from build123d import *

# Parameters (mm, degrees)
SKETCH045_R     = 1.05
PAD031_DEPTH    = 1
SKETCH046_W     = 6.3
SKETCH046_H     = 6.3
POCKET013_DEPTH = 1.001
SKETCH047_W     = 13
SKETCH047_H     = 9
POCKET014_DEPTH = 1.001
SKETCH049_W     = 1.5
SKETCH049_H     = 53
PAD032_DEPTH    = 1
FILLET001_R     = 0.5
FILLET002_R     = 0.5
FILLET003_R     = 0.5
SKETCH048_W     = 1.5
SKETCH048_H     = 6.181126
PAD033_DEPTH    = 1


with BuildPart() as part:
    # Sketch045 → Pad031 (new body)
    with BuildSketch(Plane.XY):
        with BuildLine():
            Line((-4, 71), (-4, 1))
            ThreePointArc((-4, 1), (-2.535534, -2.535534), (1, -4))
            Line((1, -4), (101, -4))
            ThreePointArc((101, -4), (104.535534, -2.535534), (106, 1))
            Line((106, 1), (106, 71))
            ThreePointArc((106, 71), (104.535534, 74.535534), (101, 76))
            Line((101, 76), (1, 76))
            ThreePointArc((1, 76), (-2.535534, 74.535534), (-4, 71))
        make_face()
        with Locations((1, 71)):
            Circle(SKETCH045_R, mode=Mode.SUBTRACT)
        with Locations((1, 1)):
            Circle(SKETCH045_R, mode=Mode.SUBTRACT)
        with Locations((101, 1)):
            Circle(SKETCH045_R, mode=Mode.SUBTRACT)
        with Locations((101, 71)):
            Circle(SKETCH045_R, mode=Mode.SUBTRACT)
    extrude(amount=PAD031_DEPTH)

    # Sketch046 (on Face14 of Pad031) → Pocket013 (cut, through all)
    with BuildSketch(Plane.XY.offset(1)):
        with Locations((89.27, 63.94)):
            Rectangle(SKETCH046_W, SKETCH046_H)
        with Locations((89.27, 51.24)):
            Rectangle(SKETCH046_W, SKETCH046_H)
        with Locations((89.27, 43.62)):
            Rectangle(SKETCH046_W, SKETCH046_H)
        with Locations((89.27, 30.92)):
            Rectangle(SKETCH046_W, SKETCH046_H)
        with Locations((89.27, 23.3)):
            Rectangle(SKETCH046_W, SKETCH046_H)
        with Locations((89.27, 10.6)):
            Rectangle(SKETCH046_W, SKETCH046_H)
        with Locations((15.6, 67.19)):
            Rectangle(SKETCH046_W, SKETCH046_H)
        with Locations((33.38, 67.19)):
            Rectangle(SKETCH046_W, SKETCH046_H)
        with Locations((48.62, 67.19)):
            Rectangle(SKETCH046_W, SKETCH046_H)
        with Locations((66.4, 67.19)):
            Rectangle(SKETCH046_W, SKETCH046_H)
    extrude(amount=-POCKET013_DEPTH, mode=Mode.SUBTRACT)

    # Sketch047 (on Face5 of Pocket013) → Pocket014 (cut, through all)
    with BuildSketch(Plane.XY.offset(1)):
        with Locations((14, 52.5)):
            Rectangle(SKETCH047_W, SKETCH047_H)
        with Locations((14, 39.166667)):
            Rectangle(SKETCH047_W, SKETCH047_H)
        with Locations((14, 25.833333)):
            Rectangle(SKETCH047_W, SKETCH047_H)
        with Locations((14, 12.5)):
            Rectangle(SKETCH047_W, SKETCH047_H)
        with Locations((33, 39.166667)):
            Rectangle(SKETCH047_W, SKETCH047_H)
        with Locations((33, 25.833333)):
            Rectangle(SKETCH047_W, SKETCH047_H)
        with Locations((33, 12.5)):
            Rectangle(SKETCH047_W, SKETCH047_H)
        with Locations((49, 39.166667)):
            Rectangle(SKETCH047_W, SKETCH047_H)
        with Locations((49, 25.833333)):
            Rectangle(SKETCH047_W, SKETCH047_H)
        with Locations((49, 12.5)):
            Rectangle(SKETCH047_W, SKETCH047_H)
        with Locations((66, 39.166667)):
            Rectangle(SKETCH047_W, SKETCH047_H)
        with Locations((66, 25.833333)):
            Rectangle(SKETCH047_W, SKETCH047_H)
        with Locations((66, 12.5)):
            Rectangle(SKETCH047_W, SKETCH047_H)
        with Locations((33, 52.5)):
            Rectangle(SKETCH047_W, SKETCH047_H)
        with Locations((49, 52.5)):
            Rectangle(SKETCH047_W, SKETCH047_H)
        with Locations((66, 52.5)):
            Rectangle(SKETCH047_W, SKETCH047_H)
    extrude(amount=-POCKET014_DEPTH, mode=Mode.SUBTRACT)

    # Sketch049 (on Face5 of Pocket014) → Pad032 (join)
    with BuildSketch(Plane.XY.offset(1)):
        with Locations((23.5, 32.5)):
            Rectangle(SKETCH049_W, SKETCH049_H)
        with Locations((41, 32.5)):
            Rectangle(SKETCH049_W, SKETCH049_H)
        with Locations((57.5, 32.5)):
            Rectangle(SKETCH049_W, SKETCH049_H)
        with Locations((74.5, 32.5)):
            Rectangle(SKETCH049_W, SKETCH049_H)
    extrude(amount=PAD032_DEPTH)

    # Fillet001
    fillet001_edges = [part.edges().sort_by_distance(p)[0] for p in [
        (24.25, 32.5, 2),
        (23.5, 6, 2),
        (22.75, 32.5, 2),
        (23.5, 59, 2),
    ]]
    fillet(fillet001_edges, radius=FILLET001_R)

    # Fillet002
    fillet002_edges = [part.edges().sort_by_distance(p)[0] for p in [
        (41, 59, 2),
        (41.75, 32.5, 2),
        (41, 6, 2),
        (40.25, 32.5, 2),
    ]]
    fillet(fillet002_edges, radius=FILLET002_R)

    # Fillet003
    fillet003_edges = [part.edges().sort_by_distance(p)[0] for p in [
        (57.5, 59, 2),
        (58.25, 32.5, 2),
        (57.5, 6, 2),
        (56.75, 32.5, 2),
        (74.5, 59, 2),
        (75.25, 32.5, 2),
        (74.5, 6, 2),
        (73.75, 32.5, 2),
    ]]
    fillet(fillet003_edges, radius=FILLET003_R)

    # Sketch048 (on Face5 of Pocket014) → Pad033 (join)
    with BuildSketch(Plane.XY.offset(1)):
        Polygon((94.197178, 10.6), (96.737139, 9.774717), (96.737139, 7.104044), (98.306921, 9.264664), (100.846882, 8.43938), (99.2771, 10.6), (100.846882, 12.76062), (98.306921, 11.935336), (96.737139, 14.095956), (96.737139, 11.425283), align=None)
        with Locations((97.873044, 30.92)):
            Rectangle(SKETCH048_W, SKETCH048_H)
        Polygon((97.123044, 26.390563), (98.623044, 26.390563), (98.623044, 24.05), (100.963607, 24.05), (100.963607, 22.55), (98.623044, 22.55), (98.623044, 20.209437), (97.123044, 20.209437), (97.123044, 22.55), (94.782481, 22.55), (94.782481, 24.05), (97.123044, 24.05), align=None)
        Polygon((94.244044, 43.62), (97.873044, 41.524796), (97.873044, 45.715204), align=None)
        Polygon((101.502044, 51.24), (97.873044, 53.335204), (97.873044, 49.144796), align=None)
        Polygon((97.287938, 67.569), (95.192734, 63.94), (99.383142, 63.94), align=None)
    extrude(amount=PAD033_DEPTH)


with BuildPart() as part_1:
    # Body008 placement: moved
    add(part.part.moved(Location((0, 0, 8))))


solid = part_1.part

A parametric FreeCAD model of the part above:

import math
import FreeCAD as App
import Part
import Sketcher

V = App.Vector
Q = App.Units.Quantity


def edges_at(feature, points):
    """Names of the edges that pass closest to the given points."""
    edges = feature.Shape.Edges
    near = lambda p: min(range(len(edges)), key=lambda i: edges[i].distToShape(Part.Vertex(*p))[0])
    return sorted({f"Edge{near(p) + 1}" for p in points})

doc = App.newDocument("Part")
body = doc.addObject("PartDesign::Body", "Body")

# Sketch on XY plane
sketch1 = body.newObject("Sketcher::SketchObject", "Sketch")
sketch1.AttachmentSupport = (doc.getObject("XY_Plane"), [""])
sketch1.MapMode = "FlatFace"
sketch1.addGeometry(Part.LineSegment(V(-4, 71, 0), V(-4, 1, 0)), False)
sketch1.addGeometry(Part.ArcOfCircle(Part.Circle(V(1, 1, 0), V(0, 0, 1), 5), math.radians(180), math.radians(270)), False)
sketch1.addGeometry(Part.LineSegment(V(1, -4, 0), V(101, -4, 0)), False)
sketch1.addGeometry(Part.ArcOfCircle(Part.Circle(V(101, 1, 0), V(0, 0, 1), 5), math.radians(-90), math.radians(0)), False)
sketch1.addGeometry(Part.LineSegment(V(106, 1, 0), V(106, 71, 0)), False)
sketch1.addGeometry(Part.ArcOfCircle(Part.Circle(V(101, 71, 0), V(0, 0, 1), 5), math.radians(0), math.radians(90)), False)
sketch1.addGeometry(Part.LineSegment(V(101, 76, 0), V(1, 76, 0)), False)
sketch1.addGeometry(Part.ArcOfCircle(Part.Circle(V(1, 71, 0), V(0, 0, 1), 5), math.radians(90), math.radians(180)), False)
sketch1.addGeometry(Part.Circle(V(1, 1, 0), V(0, 0, 1), 1.1), False)
sketch1.addGeometry(Part.Circle(V(101, 1, 0), V(0, 0, 1), 1.1), False)
sketch1.addGeometry(Part.Circle(V(1, 71, 0), V(0, 0, 1), 1.1), False)
sketch1.addGeometry(Part.Circle(V(101, 71, 0), V(0, 0, 1), 1.1), False)
sketch1.addConstraint(Sketcher.Constraint("Tangent", 0, 2, 1, 1))
sketch1.addConstraint(Sketcher.Constraint("Tangent", 1, 2, 2, 1))
sketch1.addConstraint(Sketcher.Constraint("Tangent", 2, 2, 3, 1))
sketch1.addConstraint(Sketcher.Constraint("Tangent", 3, 2, 4, 1))
sketch1.addConstraint(Sketcher.Constraint("Tangent", 4, 2, 5, 1))
sketch1.addConstraint(Sketcher.Constraint("Tangent", 5, 2, 6, 1))
sketch1.addConstraint(Sketcher.Constraint("Tangent", 6, 2, 7, 1))
sketch1.addConstraint(Sketcher.Constraint("Tangent", 7, 2, 0, 1))
sketch1.addConstraint(Sketcher.Constraint("Vertical", 0))
sketch1.addConstraint(Sketcher.Constraint("Horizontal", 2))
sketch1.addConstraint(Sketcher.Constraint("Vertical", 4))
sketch1.addConstraint(Sketcher.Constraint("Horizontal", 6))
sketch1.addConstraint(Sketcher.Constraint("Coincident", 8, 3, 1, 3))
sketch1.addConstraint(Sketcher.Constraint("Coincident", 9, 3, 3, 3))
sketch1.addConstraint(Sketcher.Constraint("Coincident", 10, 3, 7, 3))
sketch1.addConstraint(Sketcher.Constraint("Coincident", 11, 3, 5, 3))
sketch1.addConstraint(Sketcher.Constraint("Equal", 1, 3))
sketch1.addConstraint(Sketcher.Constraint("Equal", 3, 5))
sketch1.addConstraint(Sketcher.Constraint("Equal", 5, 7))
sketch1.addConstraint(Sketcher.Constraint("Equal", 8, 9))
sketch1.addConstraint(Sketcher.Constraint("Equal", 9, 10))
sketch1.addConstraint(Sketcher.Constraint("Equal", 10, 11))
sketch1.addConstraint(Sketcher.Constraint("Radius", 1, 5.0))
sketch1.addConstraint(Sketcher.Constraint("Diameter", 8, 2.1))
sketch1.addConstraint(Sketcher.Constraint("DistanceX", 2, 1, 2, 2, 100.0))
sketch1.addConstraint(Sketcher.Constraint("DistanceY", 0, 2, 0, 1, 70.0))
sketch1.addConstraint(Sketcher.Constraint("DistanceX", -1, 1, 1, 3, 1.0))
sketch1.addConstraint(Sketcher.Constraint("DistanceY", -1, 1, 1, 3, 1.0))
pad1 = body.newObject("PartDesign::Pad", "Pad")
pad1.Profile = sketch1
pad1.Length = 1

# Sketch on XY plane
sketch2 = body.newObject("Sketcher::SketchObject", "Sketch001")
sketch2.AttachmentSupport = (doc.getObject("XY_Plane"), [""])
sketch2.MapMode = "FlatFace"
sketch2.AttachmentOffset = App.Placement(V(0, 0, 1), App.Rotation())
sketch2.addGeometry(Part.LineSegment(V(86, 67, 0), V(86, 61, 0)), False)
sketch2.addGeometry(Part.LineSegment(V(86, 61, 0), V(92, 61, 0)), False)
sketch2.addGeometry(Part.LineSegment(V(92, 61, 0), V(92, 67, 0)), False)
sketch2.addGeometry(Part.LineSegment(V(92, 67, 0), V(86, 67, 0)), False)
sketch2.addGeometry(Part.LineSegment(V(86, 54, 0), V(86, 48, 0)), False)
sketch2.addGeometry(Part.LineSegment(V(86, 48, 0), V(92, 48, 0)), False)
sketch2.addGeometry(Part.LineSegment(V(92, 48, 0), V(92, 54, 0)), False)
sketch2.addGeometry(Part.LineSegment(V(92, 54, 0), V(86, 54, 0)), False)
sketch2.addGeometry(Part.LineSegment(V(86, 47, 0), V(86, 40, 0)), False)
sketch2.addGeometry(Part.LineSegment(V(86, 40, 0), V(92, 40, 0)), False)
sketch2.addGeometry(Part.LineSegment(V(92, 40, 0), V(92, 47, 0)), False)
sketch2.addGeometry(Part.LineSegment(V(92, 47, 0), V(86, 47, 0)), False)
sketch2.addGeometry(Part.LineSegment(V(86, 34, 0), V(86, 28, 0)), False)
sketch2.addGeometry(Part.LineSegment(V(86, 28, 0), V(92, 28, 0)), False)
sketch2.addGeometry(Part.LineSegment(V(92, 28, 0), V(92, 34, 0)), False)
sketch2.addGeometry(Part.LineSegment(V(92, 34, 0), V(86, 34, 0)), False)
sketch2.addGeometry(Part.LineSegment(V(86, 26, 0), V(86, 20, 0)), False)
sketch2.addGeometry(Part.LineSegment(V(86, 20, 0), V(92, 20, 0)), False)
sketch2.addGeometry(Part.LineSegment(V(92, 20, 0), V(92, 26, 0)), False)
sketch2.addGeometry(Part.LineSegment(V(92, 26, 0), V(86, 26, 0)), False)
sketch2.addGeometry(Part.LineSegment(V(86, 14, 0), V(86, 7, 0)), False)
sketch2.addGeometry(Part.LineSegment(V(86, 7, 0), V(92, 7, 0)), False)
sketch2.addGeometry(Part.LineSegment(V(92, 7, 0), V(92, 14, 0)), False)
sketch2.addGeometry(Part.LineSegment(V(92, 14, 0), V(86, 14, 0)), False)
sketch2.addGeometry(Part.LineSegment(V(12, 70, 0), V(12, 64, 0)), False)
sketch2.addGeometry(Part.LineSegment(V(12, 64, 0), V(19, 64, 0)), False)
sketch2.addGeometry(Part.LineSegment(V(19, 64, 0), V(19, 70, 0)), False)
sketch2.addGeometry(Part.LineSegment(V(19, 70, 0), V(12, 70, 0)), False)
sketch2.addGeometry(Part.LineSegment(V(30, 70, 0), V(30, 64, 0)), False)
sketch2.addGeometry(Part.LineSegment(V(30, 64, 0), V(37, 64, 0)), False)
sketch2.addGeometry(Part.LineSegment(V(37, 64, 0), V(37, 70, 0)), False)
sketch2.addGeometry(Part.LineSegment(V(37, 70, 0), V(30, 70, 0)), False)
sketch2.addGeometry(Part.LineSegment(V(45, 70, 0), V(45, 64, 0)), False)
sketch2.addGeometry(Part.LineSegment(V(45, 64, 0), V(52, 64, 0)), False)
sketch2.addGeometry(Part.LineSegment(V(52, 64, 0), V(52, 70, 0)), False)
sketch2.addGeometry(Part.LineSegment(V(52, 70, 0), V(45, 70, 0)), False)
sketch2.addGeometry(Part.LineSegment(V(63, 70, 0), V(63, 64, 0)), False)
sketch2.addGeometry(Part.LineSegment(V(63, 64, 0), V(70, 64, 0)), False)
sketch2.addGeometry(Part.LineSegment(V(70, 64, 0), V(70, 70, 0)), False)
sketch2.addGeometry(Part.LineSegment(V(70, 70, 0), V(63, 70, 0)), False)
sketch2.addConstraint(Sketcher.Constraint("Coincident", 0, 2, 1, 1))
sketch2.addConstraint(Sketcher.Constraint("Coincident", 1, 2, 2, 1))
sketch2.addConstraint(Sketcher.Constraint("Coincident", 2, 2, 3, 1))
sketch2.addConstraint(Sketcher.Constraint("Coincident", 3, 2, 0, 1))
sketch2.addConstraint(Sketcher.Constraint("Coincident", 4, 2, 5, 1))
sketch2.addConstraint(Sketcher.Constraint("Coincident", 5, 2, 6, 1))
sketch2.addConstraint(Sketcher.Constraint("Coincident", 6, 2, 7, 1))
sketch2.addConstraint(Sketcher.Constraint("Coincident", 7, 2, 4, 1))
sketch2.addConstraint(Sketcher.Constraint("Coincident", 8, 2, 9, 1))
sketch2.addConstraint(Sketcher.Constraint("Coincident", 9, 2, 10, 1))
sketch2.addConstraint(Sketcher.Constraint("Coincident", 10, 2, 11, 1))
sketch2.addConstraint(Sketcher.Constraint("Coincident", 11, 2, 8, 1))
sketch2.addConstraint(Sketcher.Constraint("Coincident", 12, 2, 13, 1))
sketch2.addConstraint(Sketcher.Constraint("Coincident", 13, 2, 14, 1))
sketch2.addConstraint(Sketcher.Constraint("Coincident", 14, 2, 15, 1))
sketch2.addConstraint(Sketcher.Constraint("Coincident", 15, 2, 12, 1))
sketch2.addConstraint(Sketcher.Constraint("Coincident", 16, 2, 17, 1))
sketch2.addConstraint(Sketcher.Constraint("Coincident", 17, 2, 18, 1))
sketch2.addConstraint(Sketcher.Constraint("Coincident", 18, 2, 19, 1))
sketch2.addConstraint(Sketcher.Constraint("Coincident", 19, 2, 16, 1))
sketch2.addConstraint(Sketcher.Constraint("Coincident", 20, 2, 21, 1))
sketch2.addConstraint(Sketcher.Constraint("Coincident", 21, 2, 22, 1))
sketch2.addConstraint(Sketcher.Constraint("Coincident", 22, 2, 23, 1))
sketch2.addConstraint(Sketcher.Constraint("Coincident", 23, 2, 20, 1))
sketch2.addConstraint(Sketcher.Constraint("Coincident", 24, 2, 25, 1))
sketch2.addConstraint(Sketcher.Constraint("Coincident", 25, 2, 26, 1))
sketch2.addConstraint(Sketcher.Constraint("Coincident", 26, 2, 27, 1))
sketch2.addConstraint(Sketcher.Constraint("Coincident", 27, 2, 24, 1))
sketch2.addConstraint(Sketcher.Constraint("Coincident", 28, 2, 29, 1))
sketch2.addConstraint(Sketcher.Constraint("Coincident", 29, 2, 30, 1))
sketch2.addConstraint(Sketcher.Constraint("Coincident", 30, 2, 31, 1))
sketch2.addConstraint(Sketcher.Constraint("Coincident", 31, 2, 28, 1))
sketch2.addConstraint(Sketcher.Constraint("Coincident", 32, 2, 33, 1))
sketch2.addConstraint(Sketcher.Constraint("Coincident", 33, 2, 34, 1))
sketch2.addConstraint(Sketcher.Constraint("Coincident", 34, 2, 35, 1))
sketch2.addConstraint(Sketcher.Constraint("Coincident", 35, 2, 32, 1))
sketch2.addConstraint(Sketcher.Constraint("Coincident", 36, 2, 37, 1))
sketch2.addConstraint(Sketcher.Constraint("Coincident", 37, 2, 38, 1))
sketch2.addConstraint(Sketcher.Constraint("Coincident", 38, 2, 39, 1))
sketch2.addConstraint(Sketcher.Constraint("Coincident", 39, 2, 36, 1))
sketch2.addConstraint(Sketcher.Constraint("Vertical", 0))
sketch2.addConstraint(Sketcher.Constraint("Horizontal", 1))
sketch2.addConstraint(Sketcher.Constraint("Vertical", 2))
sketch2.addConstraint(Sketcher.Constraint("Horizontal", 3))
sketch2.addConstraint(Sketcher.Constraint("Vertical", 4))
sketch2.addConstraint(Sketcher.Constraint("Horizontal", 5))
sketch2.addConstraint(Sketcher.Constraint("Vertical", 6))
sketch2.addConstraint(Sketcher.Constraint("Horizontal", 7))
sketch2.addConstraint(Sketcher.Constraint("Vertical", 8))
sketch2.addConstraint(Sketcher.Constraint("Horizontal", 9))
sketch2.addConstraint(Sketcher.Constraint("Vertical", 10))
sketch2.addConstraint(Sketcher.Constraint("Horizontal", 11))
sketch2.addConstraint(Sketcher.Constraint("Vertical", 12))
sketch2.addConstraint(Sketcher.Constraint("Horizontal", 13))
sketch2.addConstraint(Sketcher.Constraint("Vertical", 14))
sketch2.addConstraint(Sketcher.Constraint("Horizontal", 15))
sketch2.addConstraint(Sketcher.Constraint("Vertical", 16))
sketch2.addConstraint(Sketcher.Constraint("Horizontal", 17))
sketch2.addConstraint(Sketcher.Constraint("Vertical", 18))
sketch2.addConstraint(Sketcher.Constraint("Horizontal", 19))
sketch2.addConstraint(Sketcher.Constraint("Vertical", 20))
sketch2.addConstraint(Sketcher.Constraint("Horizontal", 21))
sketch2.addConstraint(Sketcher.Constraint("Vertical", 22))
sketch2.addConstraint(Sketcher.Constraint("Horizontal", 23))
sketch2.addConstraint(Sketcher.Constraint("Vertical", 24))
sketch2.addConstraint(Sketcher.Constraint("Horizontal", 25))
sketch2.addConstraint(Sketcher.Constraint("Vertical", 26))
sketch2.addConstraint(Sketcher.Constraint("Horizontal", 27))
sketch2.addConstraint(Sketcher.Constraint("Vertical", 28))
sketch2.addConstraint(Sketcher.Constraint("Horizontal", 29))
sketch2.addConstraint(Sketcher.Constraint("Vertical", 30))
sketch2.addConstraint(Sketcher.Constraint("Horizontal", 31))
sketch2.addConstraint(Sketcher.Constraint("Vertical", 32))
sketch2.addConstraint(Sketcher.Constraint("Horizontal", 33))
sketch2.addConstraint(Sketcher.Constraint("Vertical", 34))
sketch2.addConstraint(Sketcher.Constraint("Horizontal", 35))
sketch2.addConstraint(Sketcher.Constraint("Vertical", 36))
sketch2.addConstraint(Sketcher.Constraint("Horizontal", 37))
sketch2.addConstraint(Sketcher.Constraint("Vertical", 38))
sketch2.addConstraint(Sketcher.Constraint("Horizontal", 39))
sketch2.addConstraint(Sketcher.Constraint("Horizontal", 25, 2, 28, 2))
sketch2.addConstraint(Sketcher.Constraint("Horizontal", 27, 2, 30, 2))
sketch2.addConstraint(Sketcher.Constraint("Horizontal", 29, 2, 32, 2))
sketch2.addConstraint(Sketcher.Constraint("Horizontal", 31, 2, 34, 2))
sketch2.addConstraint(Sketcher.Constraint("Horizontal", 33, 2, 36, 2))
sketch2.addConstraint(Sketcher.Constraint("Horizontal", 35, 2, 38, 2))
sketch2.addConstraint(Sketcher.Constraint("Vertical", 3, 2, 4, 2))
sketch2.addConstraint(Sketcher.Constraint("Vertical", 2, 2, 5, 2))
sketch2.addConstraint(Sketcher.Constraint("Vertical", 7, 2, 8, 2))
sketch2.addConstraint(Sketcher.Constraint("Vertical", 6, 2, 9, 2))
sketch2.addConstraint(Sketcher.Constraint("Vertical", 11, 2, 12, 2))
sketch2.addConstraint(Sketcher.Constraint("Vertical", 10, 2, 13, 2))
sketch2.addConstraint(Sketcher.Constraint("Vertical", 15, 2, 16, 2))
sketch2.addConstraint(Sketcher.Constraint("Vertical", 14, 2, 17, 2))
sketch2.addConstraint(Sketcher.Constraint("Vertical", 19, 2, 20, 2))
sketch2.addConstraint(Sketcher.Constraint("Vertical", 18, 2, 21, 2))
sketch2.addConstraint(Sketcher.Constraint("Equal", 23, 25))
sketch2.addConstraint(Sketcher.Constraint("Equal", 27, 29))
sketch2.addConstraint(Sketcher.Constraint("Equal", 31, 33))
sketch2.addConstraint(Sketcher.Constraint("Equal", 35, 37))
sketch2.addConstraint(Sketcher.Constraint("Equal", 39, 0))
sketch2.addConstraint(Sketcher.Constraint("Equal", 2, 4))
sketch2.addConstraint(Sketcher.Constraint("Equal", 6, 8))
sketch2.addConstraint(Sketcher.Constraint("Equal", 10, 12))
sketch2.addConstraint(Sketcher.Constraint("Equal", 14, 16))
sketch2.addConstraint(Sketcher.Constraint("Equal", 18, 20))
sketch2.addConstraint(Sketcher.Constraint("Equal", 22, 24))
sketch2.addConstraint(Sketcher.Constraint("DistanceX", 1, 1, 1, 2, 6.3))
sketch2.addConstraint(Sketcher.Constraint("DistanceY", 4, 2, 3, 2, 19.0))
sketch2.addConstraint(Sketcher.Constraint("DistanceY", 12, 2, 11, 2, 19.0))
sketch2.addConstraint(Sketcher.Constraint("DistanceY", 20, 2, 19, 2, 19.0))
sketch2.addConstraint(Sketcher.Constraint("DistanceX", -1, 1, 0, 2, 86.12))
sketch2.addConstraint(Sketcher.Constraint("DistanceY", -1, 1, 0, 2, 60.79))
sketch2.addConstraint(Sketcher.Constraint("DistanceY", -1, 1, 8, 2, 40.47))
sketch2.addConstraint(Sketcher.Constraint("DistanceY", -1, 1, 16, 2, 20.15))
sketch2.addConstraint(Sketcher.Constraint("DistanceX", -1, 1, 24, 2, 12.45))
sketch2.addConstraint(Sketcher.Constraint("DistanceY", -1, 1, 24, 2, 64.04))
sketch2.addConstraint(Sketcher.Constraint("DistanceX", -1, 1, 28, 2, 30.23))
sketch2.addConstraint(Sketcher.Constraint("DistanceX", -1, 1, 32, 2, 45.47))
sketch2.addConstraint(Sketcher.Constraint("DistanceX", -1, 1, 36, 2, 63.25))
pocket1 = body.newObject("PartDesign::Pocket", "Pocket")
pocket1.Profile = sketch2
pocket1.Type = "ThroughAll"

# Sketch on XY plane
sketch3 = body.newObject("Sketcher::SketchObject", "Sketch002")
sketch3.AttachmentSupport = (doc.getObject("XY_Plane"), [""])
sketch3.MapMode = "FlatFace"
sketch3.AttachmentOffset = App.Placement(V(0, 0, 1), App.Rotation())
sketch3.addGeometry(Part.LineSegment(V(8, 57, 0), V(8, 48, 0)), False)
sketch3.addGeometry(Part.LineSegment(V(8, 48, 0), V(20, 48, 0)), False)
sketch3.addGeometry(Part.LineSegment(V(20, 48, 0), V(20, 57, 0)), False)
sketch3.addGeometry(Part.LineSegment(V(20, 57, 0), V(8, 57, 0)), False)
sketch3.addGeometry(Part.LineSegment(V(8, 44, 0), V(8, 35, 0)), False)
sketch3.addGeometry(Part.LineSegment(V(8, 35, 0), V(20, 35, 0)), False)
sketch3.addGeometry(Part.LineSegment(V(20, 35, 0), V(20, 44, 0)), False)
sketch3.addGeometry(Part.LineSegment(V(20, 44, 0), V(8, 44, 0)), False)
sketch3.addGeometry(Part.LineSegment(V(8, 30, 0), V(8, 21, 0)), False)
sketch3.addGeometry(Part.LineSegment(V(8, 21, 0), V(20, 21, 0)), False)
sketch3.addGeometry(Part.LineSegment(V(20, 21, 0), V(20, 30, 0)), False)
sketch3.addGeometry(Part.LineSegment(V(20, 30, 0), V(8, 30, 0)), False)
sketch3.addGeometry(Part.LineSegment(V(8, 17, 0), V(8, 8, 0)), False)
sketch3.addGeometry(Part.LineSegment(V(8, 8, 0), V(20, 8, 0)), False)
sketch3.addGeometry(Part.LineSegment(V(20, 8, 0), V(20, 17, 0)), False)
sketch3.addGeometry(Part.LineSegment(V(20, 17, 0), V(8, 17, 0)), False)
sketch3.addGeometry(Part.LineSegment(V(26, 44, 0), V(26, 35, 0)), False)
sketch3.addGeometry(Part.LineSegment(V(26, 35, 0), V(40, 35, 0)), False)
sketch3.addGeometry(Part.LineSegment(V(40, 35, 0), V(40, 44, 0)), False)
sketch3.addGeometry(Part.LineSegment(V(40, 44, 0), V(26, 44, 0)), False)
sketch3.addGeometry(Part.LineSegment(V(26, 30, 0), V(26, 21, 0)), False)
sketch3.addGeometry(Part.LineSegment(V(26, 21, 0), V(40, 21, 0)), False)
sketch3.addGeometry(Part.LineSegment(V(40, 21, 0), V(40, 30, 0)), False)
sketch3.addGeometry(Part.LineSegment(V(40, 30, 0), V(26, 30, 0)), False)
sketch3.addGeometry(Part.LineSegment(V(26, 17, 0), V(26, 8, 0)), False)
sketch3.addGeometry(Part.LineSegment(V(26, 8, 0), V(40, 8, 0)), False)
sketch3.addGeometry(Part.LineSegment(V(40, 8, 0), V(40, 17, 0)), False)
sketch3.addGeometry(Part.LineSegment(V(40, 17, 0), V(26, 17, 0)), False)
sketch3.addGeometry(Part.LineSegment(V(42, 44, 0), V(42, 35, 0)), False)
sketch3.addGeometry(Part.LineSegment(V(42, 35, 0), V(56, 35, 0)), False)
sketch3.addGeometry(Part.LineSegment(V(56, 35, 0), V(56, 44, 0)), False)
sketch3.addGeometry(Part.LineSegment(V(56, 44, 0), V(42, 44, 0)), False)
sketch3.addGeometry(Part.LineSegment(V(42, 30, 0), V(42, 21, 0)), False)
sketch3.addGeometry(Part.LineSegment(V(42, 21, 0), V(56, 21, 0)), False)
sketch3.addGeometry(Part.LineSegment(V(56, 21, 0), V(56, 30, 0)), False)
sketch3.addGeometry(Part.LineSegment(V(56, 30, 0), V(42, 30, 0)), False)
sketch3.addGeometry(Part.LineSegment(V(42, 17, 0), V(42, 8, 0)), False)
sketch3.addGeometry(Part.LineSegment(V(42, 8, 0), V(56, 8, 0)), False)
sketch3.addGeometry(Part.LineSegment(V(56, 8, 0), V(56, 17, 0)), False)
sketch3.addGeometry(Part.LineSegment(V(56, 17, 0), V(42, 17, 0)), False)
sketch3.addGeometry(Part.LineSegment(V(60, 44, 0), V(60, 35, 0)), False)
sketch3.addGeometry(Part.LineSegment(V(60, 35, 0), V(72, 35, 0)), False)
sketch3.addGeometry(Part.LineSegment(V(72, 35, 0), V(72, 44, 0)), False)
sketch3.addGeometry(Part.LineSegment(V(72, 44, 0), V(60, 44, 0)), False)
sketch3.addGeometry(Part.LineSegment(V(60, 30, 0), V(60, 21, 0)), False)
sketch3.addGeometry(Part.LineSegment(V(60, 21, 0), V(72, 21, 0)), False)
sketch3.addGeometry(Part.LineSegment(V(72, 21, 0), V(72, 30, 0)), False)
sketch3.addGeometry(Part.LineSegment(V(72, 30, 0), V(60, 30, 0)), False)
sketch3.addGeometry(Part.LineSegment(V(60, 17, 0), V(60, 8, 0)), False)
sketch3.addGeometry(Part.LineSegment(V(60, 8, 0), V(72, 8, 0)), False)
sketch3.addGeometry(Part.LineSegment(V(72, 8, 0), V(72, 17, 0)), False)
sketch3.addGeometry(Part.LineSegment(V(72, 17, 0), V(60, 17, 0)), False)
sketch3.addGeometry(Part.LineSegment(V(26, 57, 0), V(26, 48, 0)), False)
sketch3.addGeometry(Part.LineSegment(V(26, 48, 0), V(40, 48, 0)), False)
sketch3.addGeometry(Part.LineSegment(V(40, 48, 0), V(40, 57, 0)), False)
sketch3.addGeometry(Part.LineSegment(V(40, 57, 0), V(26, 57, 0)), False)
sketch3.addGeometry(Part.LineSegment(V(42, 57, 0), V(42, 48, 0)), False)
sketch3.addGeometry(Part.LineSegment(V(42, 48, 0), V(56, 48, 0)), False)
sketch3.addGeometry(Part.LineSegment(V(56, 48, 0), V(56, 57, 0)), False)
sketch3.addGeometry(Part.LineSegment(V(56, 57, 0), V(42, 57, 0)), False)
sketch3.addGeometry(Part.LineSegment(V(60, 57, 0), V(60, 48, 0)), False)
sketch3.addGeometry(Part.LineSegment(V(60, 48, 0), V(72, 48, 0)), False)
sketch3.addGeometry(Part.LineSegment(V(72, 48, 0), V(72, 57, 0)), False)
sketch3.addGeometry(Part.LineSegment(V(72, 57, 0), V(60, 57, 0)), False)
sketch3.addConstraint(Sketcher.Constraint("Coincident", 0, 2, 1, 1))
sketch3.addConstraint(Sketcher.Constraint("Coincident", 1, 2, 2, 1))
sketch3.addConstraint(Sketcher.Constraint("Coincident", 2, 2, 3, 1))
sketch3.addConstraint(Sketcher.Constraint("Coincident", 3, 2, 0, 1))
sketch3.addConstraint(Sketcher.Constraint("Coincident", 4, 2, 5, 1))
sketch3.addConstraint(Sketcher.Constraint("Coincident", 5, 2, 6, 1))
sketch3.addConstraint(Sketcher.Constraint("Coincident", 6, 2, 7, 1))
sketch3.addConstraint(Sketcher.Constraint("Coincident", 7, 2, 4, 1))
sketch3.addConstraint(Sketcher.Constraint("Coincident", 8, 2, 9, 1))
sketch3.addConstraint(Sketcher.Constraint("Coincident", 9, 2, 10, 1))
sketch3.addConstraint(Sketcher.Constraint("Coincident", 10, 2, 11, 1))
sketch3.addConstraint(Sketcher.Constraint("Coincident", 11, 2, 8, 1))
sketch3.addConstraint(Sketcher.Constraint("Coincident", 12, 2, 13, 1))
sketch3.addConstraint(Sketcher.Constraint("Coincident", 13, 2, 14, 1))
sketch3.addConstraint(Sketcher.Constraint("Coincident", 14, 2, 15, 1))
sketch3.addConstraint(Sketcher.Constraint("Coincident", 15, 2, 12, 1))
sketch3.addConstraint(Sketcher.Constraint("Coincident", 16, 2, 17, 1))
sketch3.addConstraint(Sketcher.Constraint("Coincident", 17, 2, 18, 1))
sketch3.addConstraint(Sketcher.Constraint("Coincident", 18, 2, 19, 1))
sketch3.addConstraint(Sketcher.Constraint("Coincident", 19, 2, 16, 1))
sketch3.addConstraint(Sketcher.Constraint("Coincident", 20, 2, 21, 1))
sketch3.addConstraint(Sketcher.Constraint("Coincident", 21, 2, 22, 1))
sketch3.addConstraint(Sketcher.Constraint("Coincident", 22, 2, 23, 1))
sketch3.addConstraint(Sketcher.Constraint("Coincident", 23, 2, 20, 1))
sketch3.addConstraint(Sketcher.Constraint("Coincident", 24, 2, 25, 1))
sketch3.addConstraint(Sketcher.Constraint("Coincident", 25, 2, 26, 1))
sketch3.addConstraint(Sketcher.Constraint("Coincident", 26, 2, 27, 1))
sketch3.addConstraint(Sketcher.Constraint("Coincident", 27, 2, 24, 1))
sketch3.addConstraint(Sketcher.Constraint("Coincident", 28, 2, 29, 1))
sketch3.addConstraint(Sketcher.Constraint("Coincident", 29, 2, 30, 1))
sketch3.addConstraint(Sketcher.Constraint("Coincident", 30, 2, 31, 1))
sketch3.addConstraint(Sketcher.Constraint("Coincident", 31, 2, 28, 1))
sketch3.addConstraint(Sketcher.Constraint("Coincident", 32, 2, 33, 1))
sketch3.addConstraint(Sketcher.Constraint("Coincident", 33, 2, 34, 1))
sketch3.addConstraint(Sketcher.Constraint("Coincident", 34, 2, 35, 1))
sketch3.addConstraint(Sketcher.Constraint("Coincident", 35, 2, 32, 1))
sketch3.addConstraint(Sketcher.Constraint("Coincident", 36, 2, 37, 1))
sketch3.addConstraint(Sketcher.Constraint("Coincident", 37, 2, 38, 1))
sketch3.addConstraint(Sketcher.Constraint("Coincident", 38, 2, 39, 1))
sketch3.addConstraint(Sketcher.Constraint("Coincident", 39, 2, 36, 1))
sketch3.addConstraint(Sketcher.Constraint("Coincident", 40, 2, 41, 1))
sketch3.addConstraint(Sketcher.Constraint("Coincident", 41, 2, 42, 1))
sketch3.addConstraint(Sketcher.Constraint("Coincident", 42, 2, 43, 1))
sketch3.addConstraint(Sketcher.Constraint("Coincident", 43, 2, 40, 1))
sketch3.addConstraint(Sketcher.Constraint("Coincident", 44, 2, 45, 1))
sketch3.addConstraint(Sketcher.Constraint("Coincident", 45, 2, 46, 1))
sketch3.addConstraint(Sketcher.Constraint("Coincident", 46, 2, 47, 1))
sketch3.addConstraint(Sketcher.Constraint("Coincident", 47, 2, 44, 1))
sketch3.addConstraint(Sketcher.Constraint("Coincident", 48, 2, 49, 1))
sketch3.addConstraint(Sketcher.Constraint("Coincident", 49, 2, 50, 1))
sketch3.addConstraint(Sketcher.Constraint("Coincident", 50, 2, 51, 1))
sketch3.addConstraint(Sketcher.Constraint("Coincident", 51, 2, 48, 1))
sketch3.addConstraint(Sketcher.Constraint("Coincident", 52, 2, 53, 1))
sketch3.addConstraint(Sketcher.Constraint("Coincident", 53, 2, 54, 1))
sketch3.addConstraint(Sketcher.Constraint("Coincident", 54, 2, 55, 1))
sketch3.addConstraint(Sketcher.Constraint("Coincident", 55, 2, 52, 1))
sketch3.addConstraint(Sketcher.Constraint("Coincident", 56, 2, 57, 1))
sketch3.addConstraint(Sketcher.Constraint("Coincident", 57, 2, 58, 1))
sketch3.addConstraint(Sketcher.Constraint("Coincident", 58, 2, 59, 1))
sketch3.addConstraint(Sketcher.Constraint("Coincident", 59, 2, 56, 1))
sketch3.addConstraint(Sketcher.Constraint("Coincident", 60, 2, 61, 1))
sketch3.addConstraint(Sketcher.Constraint("Coincident", 61, 2, 62, 1))
sketch3.addConstraint(Sketcher.Constraint("Coincident", 62, 2, 63, 1))
sketch3.addConstraint(Sketcher.Constraint("Coincident", 63, 2, 60, 1))
sketch3.addConstraint(Sketcher.Constraint("Vertical", 0))
sketch3.addConstraint(Sketcher.Constraint("Horizontal", 1))
sketch3.addConstraint(Sketcher.Constraint("Vertical", 2))
sketch3.addConstraint(Sketcher.Constraint("Horizontal", 3))
sketch3.addConstraint(Sketcher.Constraint("Vertical", 4))
sketch3.addConstraint(Sketcher.Constraint("Horizontal", 5))
sketch3.addConstraint(Sketcher.Constraint("Vertical", 6))
sketch3.addConstraint(Sketcher.Constraint("Horizontal", 7))
sketch3.addConstraint(Sketcher.Constraint("Vertical", 8))
sketch3.addConstraint(Sketcher.Constraint("Horizontal", 9))
sketch3.addConstraint(Sketcher.Constraint("Vertical", 10))
sketch3.addConstraint(Sketcher.Constraint("Horizontal", 11))
sketch3.addConstraint(Sketcher.Constraint("Vertical", 12))
sketch3.addConstraint(Sketcher.Constraint("Horizontal", 13))
sketch3.addConstraint(Sketcher.Constraint("Vertical", 14))
sketch3.addConstraint(Sketcher.Constraint("Horizontal", 15))
sketch3.addConstraint(Sketcher.Constraint("Vertical", 16))
sketch3.addConstraint(Sketcher.Constraint("Horizontal", 17))
sketch3.addConstraint(Sketcher.Constraint("Vertical", 18))
sketch3.addConstraint(Sketcher.Constraint("Horizontal", 19))
sketch3.addConstraint(Sketcher.Constraint("Vertical", 20))
sketch3.addConstraint(Sketcher.Constraint("Horizontal", 21))
sketch3.addConstraint(Sketcher.Constraint("Vertical", 22))
sketch3.addConstraint(Sketcher.Constraint("Horizontal", 23))
sketch3.addConstraint(Sketcher.Constraint("Vertical", 24))
sketch3.addConstraint(Sketcher.Constraint("Horizontal", 25))
sketch3.addConstraint(Sketcher.Constraint("Vertical", 26))
sketch3.addConstraint(Sketcher.Constraint("Horizontal", 27))
sketch3.addConstraint(Sketcher.Constraint("Vertical", 28))
sketch3.addConstraint(Sketcher.Constraint("Horizontal", 29))
sketch3.addConstraint(Sketcher.Constraint("Vertical", 30))
sketch3.addConstraint(Sketcher.Constraint("Horizontal", 31))
sketch3.addConstraint(Sketcher.Constraint("Vertical", 32))
sketch3.addConstraint(Sketcher.Constraint("Horizontal", 33))
sketch3.addConstraint(Sketcher.Constraint("Vertical", 34))
sketch3.addConstraint(Sketcher.Constraint("Horizontal", 35))
sketch3.addConstraint(Sketcher.Constraint("Vertical", 36))
sketch3.addConstraint(Sketcher.Constraint("Horizontal", 37))
sketch3.addConstraint(Sketcher.Constraint("Vertical", 38))
sketch3.addConstraint(Sketcher.Constraint("Horizontal", 39))
sketch3.addConstraint(Sketcher.Constraint("Vertical", 40))
sketch3.addConstraint(Sketcher.Constraint("Horizontal", 41))
sketch3.addConstraint(Sketcher.Constraint("Vertical", 42))
sketch3.addConstraint(Sketcher.Constraint("Horizontal", 43))
sketch3.addConstraint(Sketcher.Constraint("Vertical", 44))
sketch3.addConstraint(Sketcher.Constraint("Horizontal", 45))
sketch3.addConstraint(Sketcher.Constraint("Vertical", 46))
sketch3.addConstraint(Sketcher.Constraint("Horizontal", 47))
sketch3.addConstraint(Sketcher.Constraint("Vertical", 48))
sketch3.addConstraint(Sketcher.Constraint("Horizontal", 49))
sketch3.addConstraint(Sketcher.Constraint("Vertical", 50))
sketch3.addConstraint(Sketcher.Constraint("Horizontal", 51))
sketch3.addConstraint(Sketcher.Constraint("Vertical", 52))
sketch3.addConstraint(Sketcher.Constraint("Horizontal", 53))
sketch3.addConstraint(Sketcher.Constraint("Vertical", 54))
sketch3.addConstraint(Sketcher.Constraint("Horizontal", 55))
sketch3.addConstraint(Sketcher.Constraint("Vertical", 56))
sketch3.addConstraint(Sketcher.Constraint("Horizontal", 57))
sketch3.addConstraint(Sketcher.Constraint("Vertical", 58))
sketch3.addConstraint(Sketcher.Constraint("Horizontal", 59))
sketch3.addConstraint(Sketcher.Constraint("Vertical", 60))
sketch3.addConstraint(Sketcher.Constraint("Horizontal", 61))
sketch3.addConstraint(Sketcher.Constraint("Vertical", 62))
sketch3.addConstraint(Sketcher.Constraint("Horizontal", 63))
sketch3.addConstraint(Sketcher.Constraint("Horizontal", 5, 2, 16, 2))
sketch3.addConstraint(Sketcher.Constraint("Horizontal", 7, 2, 18, 2))
sketch3.addConstraint(Sketcher.Constraint("Horizontal", 9, 2, 20, 2))
sketch3.addConstraint(Sketcher.Constraint("Horizontal", 11, 2, 22, 2))
sketch3.addConstraint(Sketcher.Constraint("Horizontal", 13, 2, 24, 2))
sketch3.addConstraint(Sketcher.Constraint("Horizontal", 15, 2, 26, 2))
sketch3.addConstraint(Sketcher.Constraint("Horizontal", 17, 2, 28, 2))
sketch3.addConstraint(Sketcher.Constraint("Horizontal", 19, 2, 30, 2))
sketch3.addConstraint(Sketcher.Constraint("Horizontal", 21, 2, 32, 2))
sketch3.addConstraint(Sketcher.Constraint("Horizontal", 23, 2, 34, 2))
sketch3.addConstraint(Sketcher.Constraint("Horizontal", 25, 2, 36, 2))
sketch3.addConstraint(Sketcher.Constraint("Horizontal", 27, 2, 38, 2))
sketch3.addConstraint(Sketcher.Constraint("Horizontal", 29, 2, 40, 2))
sketch3.addConstraint(Sketcher.Constraint("Horizontal", 31, 2, 42, 2))
sketch3.addConstraint(Sketcher.Constraint("Horizontal", 33, 2, 44, 2))
sketch3.addConstraint(Sketcher.Constraint("Horizontal", 35, 2, 46, 2))
sketch3.addConstraint(Sketcher.Constraint("Horizontal", 37, 2, 48, 2))
sketch3.addConstraint(Sketcher.Constraint("Horizontal", 39, 2, 50, 2))
sketch3.addConstraint(Sketcher.Constraint("Horizontal", 1, 2, 52, 2))
sketch3.addConstraint(Sketcher.Constraint("Horizontal", 3, 2, 54, 2))
sketch3.addConstraint(Sketcher.Constraint("Horizontal", 53, 2, 56, 2))
sketch3.addConstraint(Sketcher.Constraint("Horizontal", 55, 2, 58, 2))
sketch3.addConstraint(Sketcher.Constraint("Horizontal", 57, 2, 60, 2))
sketch3.addConstraint(Sketcher.Constraint("Horizontal", 59, 2, 62, 2))
sketch3.addConstraint(Sketcher.Constraint("Vertical", 3, 2, 4, 2))
sketch3.addConstraint(Sketcher.Constraint("Vertical", 2, 2, 5, 2))
sketch3.addConstraint(Sketcher.Constraint("Vertical", 7, 2, 8, 2))
sketch3.addConstraint(Sketcher.Constraint("Vertical", 6, 2, 9, 2))
sketch3.addConstraint(Sketcher.Constraint("Vertical", 11, 2, 12, 2))
sketch3.addConstraint(Sketcher.Constraint("Vertical", 10, 2, 13, 2))
sketch3.addConstraint(Sketcher.Constraint("Vertical", 19, 2, 20, 2))
sketch3.addConstraint(Sketcher.Constraint("Vertical", 18, 2, 21, 2))
sketch3.addConstraint(Sketcher.Constraint("Vertical", 23, 2, 24, 2))
sketch3.addConstraint(Sketcher.Constraint("Vertical", 22, 2, 25, 2))
sketch3.addConstraint(Sketcher.Constraint("Vertical", 31, 2, 32, 2))
sketch3.addConstraint(Sketcher.Constraint("Vertical", 30, 2, 33, 2))
sketch3.addConstraint(Sketcher.Constraint("Vertical", 35, 2, 36, 2))
sketch3.addConstraint(Sketcher.Constraint("Vertical", 34, 2, 37, 2))
sketch3.addConstraint(Sketcher.Constraint("Vertical", 43, 2, 44, 2))
sketch3.addConstraint(Sketcher.Constraint("Vertical", 42, 2, 45, 2))
sketch3.addConstraint(Sketcher.Constraint("Vertical", 47, 2, 48, 2))
sketch3.addConstraint(Sketcher.Constraint("Vertical", 46, 2, 49, 2))
sketch3.addConstraint(Sketcher.Constraint("Vertical", 27, 2, 52, 2))
sketch3.addConstraint(Sketcher.Constraint("Vertical", 26, 2, 53, 2))
sketch3.addConstraint(Sketcher.Constraint("Vertical", 39, 2, 56, 2))
sketch3.addConstraint(Sketcher.Constraint("Vertical", 38, 2, 57, 2))
sketch3.addConstraint(Sketcher.Constraint("Vertical", 51, 2, 60, 2))
sketch3.addConstraint(Sketcher.Constraint("Vertical", 50, 2, 61, 2))
sketch3.addConstraint(Sketcher.Constraint("Equal", 15, 17))
sketch3.addConstraint(Sketcher.Constraint("Equal", 27, 29))
sketch3.addConstraint(Sketcher.Constraint("Equal", 39, 41))
sketch3.addConstraint(Sketcher.Constraint("Equal", 2, 4))
sketch3.addConstraint(Sketcher.Constraint("Equal", 6, 8))
sketch3.addConstraint(Sketcher.Constraint("Equal", 10, 12))
sketch3.addConstraint(Sketcher.Constraint("DistanceX", 1, 1, 1, 2, 13.0))
sketch3.addConstraint(Sketcher.Constraint("DistanceY", 0, 2, 0, 1, 9.0))
sketch3.addConstraint(Sketcher.Constraint("DistanceY", -1, 1, 0, 2, 48.0))
sketch3.addConstraint(Sketcher.Constraint("DistanceY", -1, 1, 12, 2, 8.0))
sketch3.addConstraint(Sketcher.Constraint("DistanceX", -1, 1, 0, 2, 7.5))
sketch3.addConstraint(Sketcher.Constraint("DistanceX", -1, 1, 16, 2, 26.5))
sketch3.addConstraint(Sketcher.Constraint("DistanceX", -1, 1, 28, 2, 42.5))
sketch3.addConstraint(Sketcher.Constraint("DistanceX", -1, 1, 40, 2, 59.5))
sketch3.addConstraint(Sketcher.Constraint("DistanceY", -1, 1, 4, 2, 34.666667))
sketch3.addConstraint(Sketcher.Constraint("DistanceY", -1, 1, 8, 2, 21.333333))
pocket2 = body.newObject("PartDesign::Pocket", "Pocket001")
pocket2.Profile = sketch3
pocket2.Type = "ThroughAll"

# Sketch on XY plane
sketch4 = body.newObject("Sketcher::SketchObject", "Sketch003")
sketch4.AttachmentSupport = (doc.getObject("XY_Plane"), [""])
sketch4.MapMode = "FlatFace"
sketch4.AttachmentOffset = App.Placement(V(0, 0, 1), App.Rotation())
sketch4.addGeometry(Part.LineSegment(V(22.8, 59, 0), V(22.8, 6, 0)), False)
sketch4.addGeometry(Part.LineSegment(V(22.8, 6, 0), V(24.2, 6, 0)), False)
sketch4.addGeometry(Part.LineSegment(V(24.2, 6, 0), V(24.2, 59, 0)), False)
sketch4.addGeometry(Part.LineSegment(V(24.2, 59, 0), V(22.8, 59, 0)), False)
sketch4.addGeometry(Part.LineSegment(V(40.2, 59, 0), V(40.2, 6, 0)), False)
sketch4.addGeometry(Part.LineSegment(V(40.2, 6, 0), V(41.8, 6, 0)), False)
sketch4.addGeometry(Part.LineSegment(V(41.8, 6, 0), V(41.8, 59, 0)), False)
sketch4.addGeometry(Part.LineSegment(V(41.8, 59, 0), V(40.2, 59, 0)), False)
sketch4.addGeometry(Part.LineSegment(V(56.8, 59, 0), V(56.8, 6, 0)), False)
sketch4.addGeometry(Part.LineSegment(V(56.8, 6, 0), V(58.2, 6, 0)), False)
sketch4.addGeometry(Part.LineSegment(V(58.2, 6, 0), V(58.2, 59, 0)), False)
sketch4.addGeometry(Part.LineSegment(V(58.2, 59, 0), V(56.8, 59, 0)), False)
sketch4.addGeometry(Part.LineSegment(V(73.8, 59, 0), V(73.8, 6, 0)), False)
sketch4.addGeometry(Part.LineSegment(V(73.8, 6, 0), V(75.2, 6, 0)), False)
sketch4.addGeometry(Part.LineSegment(V(75.2, 6, 0), V(75.2, 59, 0)), False)
sketch4.addGeometry(Part.LineSegment(V(75.2, 59, 0), V(73.8, 59, 0)), False)
sketch4.addConstraint(Sketcher.Constraint("Coincident", 0, 2, 1, 1))
sketch4.addConstraint(Sketcher.Constraint("Coincident", 1, 2, 2, 1))
sketch4.addConstraint(Sketcher.Constraint("Coincident", 2, 2, 3, 1))
sketch4.addConstraint(Sketcher.Constraint("Coincident", 3, 2, 0, 1))
sketch4.addConstraint(Sketcher.Constraint("Coincident", 4, 2, 5, 1))
sketch4.addConstraint(Sketcher.Constraint("Coincident", 5, 2, 6, 1))
sketch4.addConstraint(Sketcher.Constraint("Coincident", 6, 2, 7, 1))
sketch4.addConstraint(Sketcher.Constraint("Coincident", 7, 2, 4, 1))
sketch4.addConstraint(Sketcher.Constraint("Coincident", 8, 2, 9, 1))
sketch4.addConstraint(Sketcher.Constraint("Coincident", 9, 2, 10, 1))
sketch4.addConstraint(Sketcher.Constraint("Coincident", 10, 2, 11, 1))
sketch4.addConstraint(Sketcher.Constraint("Coincident", 11, 2, 8, 1))
sketch4.addConstraint(Sketcher.Constraint("Coincident", 12, 2, 13, 1))
sketch4.addConstraint(Sketcher.Constraint("Coincident", 13, 2, 14, 1))
sketch4.addConstraint(Sketcher.Constraint("Coincident", 14, 2, 15, 1))
sketch4.addConstraint(Sketcher.Constraint("Coincident", 15, 2, 12, 1))
sketch4.addConstraint(Sketcher.Constraint("Vertical", 0))
sketch4.addConstraint(Sketcher.Constraint("Horizontal", 1))
sketch4.addConstraint(Sketcher.Constraint("Vertical", 2))
sketch4.addConstraint(Sketcher.Constraint("Horizontal", 3))
sketch4.addConstraint(Sketcher.Constraint("Vertical", 4))
sketch4.addConstraint(Sketcher.Constraint("Horizontal", 5))
sketch4.addConstraint(Sketcher.Constraint("Vertical", 6))
sketch4.addConstraint(Sketcher.Constraint("Horizontal", 7))
sketch4.addConstraint(Sketcher.Constraint("Vertical", 8))
sketch4.addConstraint(Sketcher.Constraint("Horizontal", 9))
sketch4.addConstraint(Sketcher.Constraint("Vertical", 10))
sketch4.addConstraint(Sketcher.Constraint("Horizontal", 11))
sketch4.addConstraint(Sketcher.Constraint("Vertical", 12))
sketch4.addConstraint(Sketcher.Constraint("Horizontal", 13))
sketch4.addConstraint(Sketcher.Constraint("Vertical", 14))
sketch4.addConstraint(Sketcher.Constraint("Horizontal", 15))
sketch4.addConstraint(Sketcher.Constraint("Horizontal", 1, 2, 4, 2))
sketch4.addConstraint(Sketcher.Constraint("Horizontal", 3, 2, 6, 2))
sketch4.addConstraint(Sketcher.Constraint("Horizontal", 5, 2, 8, 2))
sketch4.addConstraint(Sketcher.Constraint("Horizontal", 7, 2, 10, 2))
sketch4.addConstraint(Sketcher.Constraint("Horizontal", 9, 2, 12, 2))
sketch4.addConstraint(Sketcher.Constraint("Horizontal", 11, 2, 14, 2))
sketch4.addConstraint(Sketcher.Constraint("Equal", 3, 5))
sketch4.addConstraint(Sketcher.Constraint("Equal", 7, 9))
sketch4.addConstraint(Sketcher.Constraint("Equal", 11, 13))
sketch4.addConstraint(Sketcher.Constraint("DistanceY", 0, 2, 0, 1, 53.0))
sketch4.addConstraint(Sketcher.Constraint("DistanceX", 1, 1, 1, 2, 1.5))
sketch4.addConstraint(Sketcher.Constraint("DistanceY", -1, 1, 0, 2, 6.0))
sketch4.addConstraint(Sketcher.Constraint("DistanceX", 1, 2, 4, 2, 16.0))
sketch4.addConstraint(Sketcher.Constraint("DistanceX", 5, 2, 8, 2, 15.0))
sketch4.addConstraint(Sketcher.Constraint("DistanceX", 8, 2, 12, 2, 17.0))
sketch4.addConstraint(Sketcher.Constraint("DistanceX", -1, 1, 0, 2, 22.75))
pad2 = body.newObject("PartDesign::Pad", "Pad001")
pad2.Profile = sketch4
pad2.Length = 1
doc.recompute()

fillet = body.newObject("PartDesign::Fillet", "Fillet")
fillet.Base = (pad2, edges_at(pad2, [
    (24.25, 32.5, 2),
    (23.5, 6, 2),
    (22.75, 32.5, 2),
    (23.5, 59, 2),
]))
fillet.Radius = 0.5
doc.recompute()

fillet2 = body.newObject("PartDesign::Fillet", "Fillet001")
fillet2.Base = (fillet, edges_at(fillet, [
    (41, 59, 2),
    (41.75, 32.5, 2),
    (41, 6, 2),
    (40.25, 32.5, 2),
]))
fillet2.Radius = 0.5
doc.recompute()

fillet3 = body.newObject("PartDesign::Fillet", "Fillet002")
fillet3.Base = (fillet2, edges_at(fillet2, [
    (57.5, 59, 2),
    (58.25, 32.5, 2),
    (57.5, 6, 2),
    (56.75, 32.5, 2),
    (74.5, 59, 2),
    (75.25, 32.5, 2),
    (74.5, 6, 2),
    (73.75, 32.5, 2),
]))
fillet3.Radius = 0.5

# Sketch on XY plane
sketch5 = body.newObject("Sketcher::SketchObject", "Sketch004")
sketch5.AttachmentSupport = (doc.getObject("XY_Plane"), [""])
sketch5.MapMode = "FlatFace"
sketch5.AttachmentOffset = App.Placement(V(0, 0, 1), App.Rotation())
sketch5.addGeometry(Part.LineSegment(V(94.2, 10.6, 0), V(96.7, 9.8, 0)), False)
sketch5.addGeometry(Part.LineSegment(V(96.7, 9.8, 0), V(96.7, 7.1, 0)), False)
sketch5.addGeometry(Part.LineSegment(V(96.7, 7.1, 0), V(98.3, 9.3, 0)), False)
sketch5.addGeometry(Part.LineSegment(V(98.3, 9.3, 0), V(100.8, 8.4, 0)), False)
sketch5.addGeometry(Part.LineSegment(V(100.8, 8.4, 0), V(99.3, 10.6, 0)), False)
sketch5.addGeometry(Part.LineSegment(V(99.3, 10.6, 0), V(100.8, 12.8, 0)), False)
sketch5.addGeometry(Part.LineSegment(V(100.8, 12.8, 0), V(98.3, 11.9, 0)), False)
sketch5.addGeometry(Part.LineSegment(V(98.3, 11.9, 0), V(96.7, 14.1, 0)), False)
sketch5.addGeometry(Part.LineSegment(V(96.7, 14.1, 0), V(96.7, 11.4, 0)), False)
sketch5.addGeometry(Part.LineSegment(V(96.7, 11.4, 0), V(94.2, 10.6, 0)), False)
sketch5.addGeometry(Part.LineSegment(V(97.1, 34, 0), V(97.1, 27.8, 0)), False)
sketch5.addGeometry(Part.LineSegment(V(97.1, 27.8, 0), V(98.6, 27.8, 0)), False)
sketch5.addGeometry(Part.LineSegment(V(98.6, 27.8, 0), V(98.6, 34, 0)), False)
sketch5.addGeometry(Part.LineSegment(V(98.6, 34, 0), V(97.1, 34, 0)), False)
sketch5.addGeometry(Part.LineSegment(V(98.6, 26.4, 0), V(97.1, 26.4, 0)), False)
sketch5.addGeometry(Part.LineSegment(V(97.1, 26.4, 0), V(97.1, 24.1, 0)), False)
sketch5.addGeometry(Part.LineSegment(V(97.1, 24.1, 0), V(94.8, 24.1, 0)), False)
sketch5.addGeometry(Part.LineSegment(V(94.8, 24.1, 0), V(94.8, 22.6, 0)), False)
sketch5.addGeometry(Part.LineSegment(V(94.8, 22.6, 0), V(97.1, 22.6, 0)), False)
sketch5.addGeometry(Part.LineSegment(V(97.1, 22.6, 0), V(97.1, 20.2, 0)), False)
sketch5.addGeometry(Part.LineSegment(V(97.1, 20.2, 0), V(98.6, 20.2, 0)), False)
sketch5.addGeometry(Part.LineSegment(V(98.6, 20.2, 0), V(98.6, 22.6, 0)), False)
sketch5.addGeometry(Part.LineSegment(V(98.6, 22.6, 0), V(101, 22.6, 0)), False)
sketch5.addGeometry(Part.LineSegment(V(101, 22.6, 0), V(101, 24.1, 0)), False)
sketch5.addGeometry(Part.LineSegment(V(101, 24.1, 0), V(98.6, 24.1, 0)), False)
sketch5.addGeometry(Part.LineSegment(V(98.6, 24.1, 0), V(98.6, 26.4, 0)), False)
sketch5.addGeometry(Part.LineSegment(V(94.2, 43.6, 0), V(97.9, 41.5, 0)), False)
sketch5.addGeometry(Part.LineSegment(V(97.9, 41.5, 0), V(97.9, 45.7, 0)), False)
sketch5.addGeometry(Part.LineSegment(V(97.9, 45.7, 0), V(94.2, 43.6, 0)), False)
sketch5.addGeometry(Part.LineSegment(V(101.5, 51.2, 0), V(97.9, 53.3, 0)), False)
sketch5.addGeometry(Part.LineSegment(V(97.9, 53.3, 0), V(97.9, 49.1, 0)), False)
sketch5.addGeometry(Part.LineSegment(V(97.9, 49.1, 0), V(101.5, 51.2, 0)), False)
sketch5.addGeometry(Part.LineSegment(V(97.3, 67.6, 0), V(95.2, 63.9, 0)), False)
sketch5.addGeometry(Part.LineSegment(V(95.2, 63.9, 0), V(99.4, 63.9, 0)), False)
sketch5.addGeometry(Part.LineSegment(V(99.4, 63.9, 0), V(97.3, 67.6, 0)), False)
sketch5.addConstraint(Sketcher.Constraint("Coincident", 0, 2, 1, 1))
sketch5.addConstraint(Sketcher.Constraint("Coincident", 1, 2, 2, 1))
sketch5.addConstraint(Sketcher.Constraint("Coincident", 2, 2, 3, 1))
sketch5.addConstraint(Sketcher.Constraint("Coincident", 3, 2, 4, 1))
sketch5.addConstraint(Sketcher.Constraint("Coincident", 4, 2, 5, 1))
sketch5.addConstraint(Sketcher.Constraint("Coincident", 5, 2, 6, 1))
sketch5.addConstraint(Sketcher.Constraint("Coincident", 6, 2, 7, 1))
sketch5.addConstraint(Sketcher.Constraint("Coincident", 7, 2, 8, 1))
sketch5.addConstraint(Sketcher.Constraint("Coincident", 8, 2, 9, 1))
sketch5.addConstraint(Sketcher.Constraint("Coincident", 9, 2, 0, 1))
sketch5.addConstraint(Sketcher.Constraint("Coincident", 10, 2, 11, 1))
sketch5.addConstraint(Sketcher.Constraint("Coincident", 11, 2, 12, 1))
sketch5.addConstraint(Sketcher.Constraint("Coincident", 12, 2, 13, 1))
sketch5.addConstraint(Sketcher.Constraint("Coincident", 13, 2, 10, 1))
sketch5.addConstraint(Sketcher.Constraint("Coincident", 14, 2, 15, 1))
sketch5.addConstraint(Sketcher.Constraint("Coincident", 15, 2, 16, 1))
sketch5.addConstraint(Sketcher.Constraint("Coincident", 16, 2, 17, 1))
sketch5.addConstraint(Sketcher.Constraint("Coincident", 17, 2, 18, 1))
sketch5.addConstraint(Sketcher.Constraint("Coincident", 18, 2, 19, 1))
sketch5.addConstraint(Sketcher.Constraint("Coincident", 19, 2, 20, 1))
sketch5.addConstraint(Sketcher.Constraint("Coincident", 20, 2, 21, 1))
sketch5.addConstraint(Sketcher.Constraint("Coincident", 21, 2, 22, 1))
sketch5.addConstraint(Sketcher.Constraint("Coincident", 22, 2, 23, 1))
sketch5.addConstraint(Sketcher.Constraint("Coincident", 23, 2, 24, 1))
sketch5.addConstraint(Sketcher.Constraint("Coincident", 24, 2, 25, 1))
sketch5.addConstraint(Sketcher.Constraint("Coincident", 25, 2, 14, 1))
sketch5.addConstraint(Sketcher.Constraint("Coincident", 26, 2, 27, 1))
sketch5.addConstraint(Sketcher.Constraint("Coincident", 27, 2, 28, 1))
sketch5.addConstraint(Sketcher.Constraint("Coincident", 28, 2, 26, 1))
sketch5.addConstraint(Sketcher.Constraint("Coincident", 29, 2, 30, 1))
sketch5.addConstraint(Sketcher.Constraint("Coincident", 30, 2, 31, 1))
sketch5.addConstraint(Sketcher.Constraint("Coincident", 31, 2, 29, 1))
sketch5.addConstraint(Sketcher.Constraint("Coincident", 32, 2, 33, 1))
sketch5.addConstraint(Sketcher.Constraint("Coincident", 33, 2, 34, 1))
sketch5.addConstraint(Sketcher.Constraint("Coincident", 34, 2, 32, 1))
sketch5.addConstraint(Sketcher.Constraint("Vertical", 1))
sketch5.addConstraint(Sketcher.Constraint("Vertical", 8))
sketch5.addConstraint(Sketcher.Constraint("Vertical", 10))
sketch5.addConstraint(Sketcher.Constraint("Horizontal", 11))
sketch5.addConstraint(Sketcher.Constraint("Vertical", 12))
sketch5.addConstraint(Sketcher.Constraint("Horizontal", 13))
sketch5.addConstraint(Sketcher.Constraint("Horizontal", 14))
sketch5.addConstraint(Sketcher.Constraint("Vertical", 15))
sketch5.addConstraint(Sketcher.Constraint("Horizontal", 16))
sketch5.addConstraint(Sketcher.Constraint("Vertical", 17))
sketch5.addConstraint(Sketcher.Constraint("Horizontal", 18))
sketch5.addConstraint(Sketcher.Constraint("Vertical", 19))
sketch5.addConstraint(Sketcher.Constraint("Horizontal", 20))
sketch5.addConstraint(Sketcher.Constraint("Vertical", 21))
sketch5.addConstraint(Sketcher.Constraint("Horizontal", 22))
sketch5.addConstraint(Sketcher.Constraint("Vertical", 23))
sketch5.addConstraint(Sketcher.Constraint("Horizontal", 24))
sketch5.addConstraint(Sketcher.Constraint("Vertical", 25))
sketch5.addConstraint(Sketcher.Constraint("Vertical", 27))
sketch5.addConstraint(Sketcher.Constraint("Vertical", 30))
sketch5.addConstraint(Sketcher.Constraint("Horizontal", 33))
sketch5.addConstraint(Sketcher.Constraint("Parallel", 0, 3))
sketch5.addConstraint(Sketcher.Constraint("Parallel", 2, 5))
sketch5.addConstraint(Sketcher.Constraint("Parallel", 4, 7))
sketch5.addConstraint(Sketcher.Constraint("Parallel", 6, 9))
sketch5.addConstraint(Sketcher.Constraint("Parallel", 26, 29))
sketch5.addConstraint(Sketcher.Constraint("Parallel", 28, 31))
sketch5.addConstraint(Sketcher.Constraint("Perpendicular", 29, 32))
sketch5.addConstraint(Sketcher.Constraint("Perpendicular", 31, 34))
sketch5.addConstraint(Sketcher.Constraint("Horizontal", 4, 2, 9, 2))
sketch5.addConstraint(Sketcher.Constraint("Horizontal", 18, 2, 21, 2))
sketch5.addConstraint(Sketcher.Constraint("Horizontal", 16, 2, 23, 2))
sketch5.addConstraint(Sketcher.Constraint("Vertical", 3, 2, 5, 2))
sketch5.addConstraint(Sketcher.Constraint("Vertical", 2, 2, 6, 2))
sketch5.addConstraint(Sketcher.Constraint("Vertical", 1, 2, 7, 2))
sketch5.addConstraint(Sketcher.Constraint("Vertical", 13, 2, 14, 2))
sketch5.addConstraint(Sketcher.Constraint("Vertical", 15, 2, 18, 2))
sketch5.addConstraint(Sketcher.Constraint("Vertical", 12, 2, 20, 2))
sketch5.addConstraint(Sketcher.Constraint("Vertical", 21, 2, 24, 2))
sketch5.addConstraint(Sketcher.Constraint("Vertical", 27, 2, 29, 2))
sketch5.addConstraint(Sketcher.Constraint("Equal", 18, 22))
sketch5.addConstraint(Sketcher.Constraint("Equal", 1, 8))
sketch5.addConstraint(Sketcher.Constraint("Equal", 24, 15))
sketch5.addConstraint(Sketcher.Constraint("Equal", 20, 17))
sketch5.addConstraint(Sketcher.Constraint("Equal", 15, 19))
sketch5.addConstraint(Sketcher.Constraint("Equal", 33, 27))
sketch5.addConstraint(Sketcher.Constraint("Equal", 27, 30))
sketch5.addConstraint(Sketcher.Constraint("Equal", 0, 2))
sketch5.addConstraint(Sketcher.Constraint("Equal", 2, 3))
sketch5.addConstraint(Sketcher.Constraint("Equal", 3, 4))
sketch5.addConstraint(Sketcher.Constraint("Equal", 4, 5))
sketch5.addConstraint(Sketcher.Constraint("Equal", 26, 28))
sketch5.addConstraint(Sketcher.Constraint("Angle", 0, Q("-17.999993 deg")))
sketch5.addConstraint(Sketcher.Constraint("Angle", 2, Q("54.000005 deg")))
sketch5.addConstraint(Sketcher.Constraint("Angle", 26, Q("-29.999998 deg")))
sketch5.addConstraint(Sketcher.Constraint("DistanceX", 11, 1, 11, 2, 1.5))
sketch5.addConstraint(Sketcher.Constraint("DistanceY", -1, 1, 4, 2, 10.6))
sketch5.addConstraint(Sketcher.Constraint("DistanceY", 31, 2, 32, 2, 12.7))
sketch5.addConstraint(Sketcher.Constraint("DistanceY", -1, 1, 15, 2, 24.05))
sketch5.addConstraint(Sketcher.Constraint("DistanceY", -1, 1, 28, 2, 43.62))
sketch5.addConstraint(Sketcher.Constraint("DistanceY", -1, 1, 31, 2, 51.24))
sketch5.addConstraint(Sketcher.Constraint("DistanceY", 14, 2, 13, 2, 7.62))
sketch5.addConstraint(Sketcher.Constraint("DistanceX", 26, 2, 12, 2, 0.75))
sketch5.addConstraint(Sketcher.Constraint("DistanceY", -1, 1, 34, 2, 67.569))
sketch5.addConstraint(Sketcher.Constraint("DistanceX", -1, 1, 4, 2, 99.2771))
sketch5.addConstraint(Sketcher.Constraint("DistanceY", 6, 2, 10, 2, 15.894101))
sketch5.addConstraint(Sketcher.Constraint("DistanceX", 29, 2, 33, 2, 1.510098))
sketch5.addConstraint(Sketcher.Constraint("DistanceX", 16, 2, 16, 1, 2.340563))
sketch5.addConstraint(Sketcher.Constraint("DistanceY", 1, 2, 1, 1, 2.670673))
sketch5.addConstraint(Sketcher.Constraint("DistanceX", -1, 1, 16, 2, 94.782481))
pad3 = body.newObject("PartDesign::Pad", "Pad002")
pad3.Profile = sketch5
pad3.Length = 1
body2 = doc.addObject("PartDesign::Body", "Body001")
doc.recompute()

body.Placement = App.Placement(V(0, 0, 8), App.Rotation(V(0, 0, 1), 0))
boolean = body2.newObject("PartDesign::Boolean", "Boolean")
boolean.Type = "Fuse"
boolean.addObjects([body])

doc.recompute()
